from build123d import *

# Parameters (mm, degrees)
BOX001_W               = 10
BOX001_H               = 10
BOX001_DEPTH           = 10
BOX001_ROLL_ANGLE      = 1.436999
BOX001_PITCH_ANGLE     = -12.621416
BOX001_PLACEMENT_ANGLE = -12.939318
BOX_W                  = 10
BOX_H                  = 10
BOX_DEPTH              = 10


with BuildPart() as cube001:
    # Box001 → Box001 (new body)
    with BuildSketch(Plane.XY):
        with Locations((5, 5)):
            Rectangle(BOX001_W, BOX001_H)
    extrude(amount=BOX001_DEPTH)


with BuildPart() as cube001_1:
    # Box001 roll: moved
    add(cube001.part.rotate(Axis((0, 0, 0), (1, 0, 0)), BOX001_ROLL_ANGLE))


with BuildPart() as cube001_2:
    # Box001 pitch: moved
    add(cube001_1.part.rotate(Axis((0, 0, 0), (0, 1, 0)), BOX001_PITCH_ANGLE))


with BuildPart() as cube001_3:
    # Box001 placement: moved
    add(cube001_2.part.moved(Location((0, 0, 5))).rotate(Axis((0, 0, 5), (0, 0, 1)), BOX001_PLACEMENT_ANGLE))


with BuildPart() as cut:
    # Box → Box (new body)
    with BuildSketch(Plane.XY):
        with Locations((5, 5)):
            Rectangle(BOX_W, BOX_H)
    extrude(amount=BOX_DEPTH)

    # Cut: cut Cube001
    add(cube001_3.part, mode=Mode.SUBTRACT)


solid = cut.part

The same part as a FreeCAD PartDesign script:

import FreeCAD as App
import Part
import Sketcher


def add_polygon(sketch, points):
    """Adds a closed chain of lines whose ends are joined by coincident constraints."""
    first, n = sketch.GeometryCount, len(points)
    for a, b in zip(points, points[1:] + points[:1]):
        sketch.addGeometry(Part.LineSegment(App.Vector(*a, 0), App.Vector(*b, 0)), False)
    for i in range(n):
        sketch.addConstraint(Sketcher.Constraint("Coincident", first + i, 2, first + (i + 1) % n, 1))

doc = App.newDocument("Part")
body = doc.addObject("PartDesign::Body", "Body")

# Sketch on XY plane
sketch1 = body.newObject("Sketcher::SketchObject", "Sketch")
sketch1.AttachmentSupport = (doc.getObject("XY_Plane"), [""])
sketch1.MapMode = "FlatFace"
add_polygon(sketch1, [(0, 10), (0, 0), (10, 0), (10, 10)])  # lines 0-3
sketch1.addConstraint([
    Sketcher.Constraint("Vertical", 0),
    Sketcher.Constraint("Horizontal", 1),
    Sketcher.Constraint("Vertical", 2),
    Sketcher.Constraint("Horizontal", 3),
    Sketcher.Constraint("Coincident", 0, 2, -1, 1),
    Sketcher.Constraint("Equal", 3, 0),
    Sketcher.Constraint("DistanceX", 1, 1, 1, 2, 10.0),
])
pad1 = body.newObject("PartDesign::Pad", "Pad")
pad1.Profile = sketch1
pad1.Length = 10
body2 = doc.addObject("PartDesign::Body", "Body001")
doc.recompute()

body.Placement = App.Placement(App.Vector(0, 0, 0), App.Rotation(App.Vector(1, 0, 0), 1.436999))
boolean = body2.newObject("PartDesign::Boolean", "Boolean")
boolean.Type = "Fuse"
boolean.addObjects([body])
body3 = doc.addObject("PartDesign::Body", "Body002")
doc.recompute()

body2.Placement = App.Placement(App.Vector(0, 0, 0), App.Rotation(App.Vector(0, 1, 0), 347.378584))
boolean2 = body3.newObject("PartDesign::Boolean", "Boolean001")
boolean2.Type = "Fuse"
boolean2.addObjects([body2])
body4 = doc.addObject("PartDesign::Body", "Body003")
doc.recompute()

body3.Placement = App.Placement(App.Vector(0, 0, 5), App.Rotation(App.Vector(0, 0, 1), 347.060682))
boolean3 = body4.newObject("PartDesign::Boolean", "Boolean002")
boolean3.Type = "Fuse"
boolean3.addObjects([body3])
body5 = doc.addObject("PartDesign::Body", "Body004")
body5.AllowCompound = True

# Sketch on XY plane
sketch2 = body5.newObject("Sketcher::SketchObject", "Sketch001")
sketch2.AttachmentSupport = (doc.getObject("XY_Plane004"), [""])
sketch2.MapMode = "FlatFace"
add_polygon(sketch2, [(0, 10), (0, 0), (10, 0), (10, 10)])  # lines 0-3
sketch2.addConstraint([
    Sketcher.Constraint("Vertical", 0),
    Sketcher.Constraint("Horizontal", 1),
    Sketcher.Constraint("Vertical", 2),
    Sketcher.Constraint("Horizontal", 3),
    Sketcher.Constraint("Coincident", 0, 2, -1, 1),
    Sketcher.Constraint("Equal", 3, 0),
    Sketcher.Constraint("DistanceX", 1, 1, 1, 2, 10.0),
])
pad2 = body5.newObject("PartDesign::Pad", "Pad001")
pad2.Profile = sketch2
pad2.Length = 10
doc.recompute()

boolean4 = body5.newObject("PartDesign::Boolean", "Boolean003")
boolean4.Type = "Cut"
boolean4.addObjects([body4])

doc.recompute()
